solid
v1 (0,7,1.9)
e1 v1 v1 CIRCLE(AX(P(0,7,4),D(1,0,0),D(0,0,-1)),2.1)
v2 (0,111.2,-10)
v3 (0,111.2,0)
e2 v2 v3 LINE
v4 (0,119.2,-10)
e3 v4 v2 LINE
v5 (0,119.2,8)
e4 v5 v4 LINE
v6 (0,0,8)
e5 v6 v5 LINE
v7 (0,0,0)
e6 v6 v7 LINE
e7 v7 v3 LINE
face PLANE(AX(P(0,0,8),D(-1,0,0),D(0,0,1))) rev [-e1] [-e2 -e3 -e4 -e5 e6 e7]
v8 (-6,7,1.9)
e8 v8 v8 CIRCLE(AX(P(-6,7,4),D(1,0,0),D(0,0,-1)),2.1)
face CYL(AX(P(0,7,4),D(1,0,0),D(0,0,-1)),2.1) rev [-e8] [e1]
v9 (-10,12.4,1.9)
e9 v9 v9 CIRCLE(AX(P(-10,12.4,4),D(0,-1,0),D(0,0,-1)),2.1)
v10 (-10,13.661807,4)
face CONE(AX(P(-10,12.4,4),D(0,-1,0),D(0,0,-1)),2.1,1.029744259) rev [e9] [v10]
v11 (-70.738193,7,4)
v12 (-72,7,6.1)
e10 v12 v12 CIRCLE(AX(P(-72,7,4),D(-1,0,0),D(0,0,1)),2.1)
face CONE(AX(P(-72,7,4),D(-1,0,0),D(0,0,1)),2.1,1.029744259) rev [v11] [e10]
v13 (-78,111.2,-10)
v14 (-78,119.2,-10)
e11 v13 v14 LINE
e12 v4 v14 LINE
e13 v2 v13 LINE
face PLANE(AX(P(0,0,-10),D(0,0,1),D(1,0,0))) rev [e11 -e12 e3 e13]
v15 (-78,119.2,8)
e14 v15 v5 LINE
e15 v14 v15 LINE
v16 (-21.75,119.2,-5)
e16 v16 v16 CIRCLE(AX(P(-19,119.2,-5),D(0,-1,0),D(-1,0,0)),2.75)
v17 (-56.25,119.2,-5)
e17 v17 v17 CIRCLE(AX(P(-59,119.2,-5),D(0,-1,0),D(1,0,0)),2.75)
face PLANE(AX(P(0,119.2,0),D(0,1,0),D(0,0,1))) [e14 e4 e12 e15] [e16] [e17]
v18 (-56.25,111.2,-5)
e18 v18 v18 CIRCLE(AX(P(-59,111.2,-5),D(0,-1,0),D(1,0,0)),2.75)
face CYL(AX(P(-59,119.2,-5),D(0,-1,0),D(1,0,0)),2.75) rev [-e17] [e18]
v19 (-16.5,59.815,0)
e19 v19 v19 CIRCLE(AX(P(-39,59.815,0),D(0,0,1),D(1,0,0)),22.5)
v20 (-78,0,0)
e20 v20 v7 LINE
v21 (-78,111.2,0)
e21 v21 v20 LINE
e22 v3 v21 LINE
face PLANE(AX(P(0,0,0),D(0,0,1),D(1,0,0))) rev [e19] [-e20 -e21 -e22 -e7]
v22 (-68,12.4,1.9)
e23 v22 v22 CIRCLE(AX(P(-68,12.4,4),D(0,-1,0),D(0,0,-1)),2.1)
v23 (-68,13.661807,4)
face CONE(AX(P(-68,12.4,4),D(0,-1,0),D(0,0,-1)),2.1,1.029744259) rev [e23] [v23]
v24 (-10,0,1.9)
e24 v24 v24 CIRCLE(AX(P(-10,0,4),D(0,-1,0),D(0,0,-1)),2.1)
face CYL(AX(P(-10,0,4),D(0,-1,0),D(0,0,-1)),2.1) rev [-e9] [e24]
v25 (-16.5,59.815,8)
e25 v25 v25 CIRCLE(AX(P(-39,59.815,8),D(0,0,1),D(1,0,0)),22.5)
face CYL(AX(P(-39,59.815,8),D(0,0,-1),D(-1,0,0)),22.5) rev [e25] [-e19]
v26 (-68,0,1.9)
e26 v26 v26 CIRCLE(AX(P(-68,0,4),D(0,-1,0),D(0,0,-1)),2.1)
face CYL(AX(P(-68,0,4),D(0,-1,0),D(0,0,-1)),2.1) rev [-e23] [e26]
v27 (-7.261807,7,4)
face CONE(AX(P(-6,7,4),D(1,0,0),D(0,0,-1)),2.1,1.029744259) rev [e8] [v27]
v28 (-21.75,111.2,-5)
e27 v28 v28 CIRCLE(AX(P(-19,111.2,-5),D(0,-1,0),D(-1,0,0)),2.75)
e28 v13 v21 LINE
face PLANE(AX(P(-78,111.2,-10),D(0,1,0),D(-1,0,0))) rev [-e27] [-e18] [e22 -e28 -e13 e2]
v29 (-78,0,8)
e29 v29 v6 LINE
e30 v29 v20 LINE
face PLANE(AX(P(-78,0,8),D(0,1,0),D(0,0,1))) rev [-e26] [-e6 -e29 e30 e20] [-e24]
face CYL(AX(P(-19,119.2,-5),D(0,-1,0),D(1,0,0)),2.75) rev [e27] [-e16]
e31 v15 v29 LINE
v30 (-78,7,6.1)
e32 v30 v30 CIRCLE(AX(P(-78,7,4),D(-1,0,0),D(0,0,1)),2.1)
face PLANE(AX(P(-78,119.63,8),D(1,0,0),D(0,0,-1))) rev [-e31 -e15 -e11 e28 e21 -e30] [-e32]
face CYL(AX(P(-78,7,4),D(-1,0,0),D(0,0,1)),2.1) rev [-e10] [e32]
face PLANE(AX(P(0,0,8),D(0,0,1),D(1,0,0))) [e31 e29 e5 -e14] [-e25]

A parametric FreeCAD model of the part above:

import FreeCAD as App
import Part
import Sketcher
from FreeCAD import Vector
Q = App.Units.Quantity


def add_polygon(sketch, points):
    """Adds a closed chain of lines whose ends are joined by coincident constraints."""
    first, n = sketch.GeometryCount, len(points)
    for a, b in zip(points, points[1:] + points[:1]):
        sketch.addGeometry(Part.LineSegment(App.Vector(*a, 0), App.Vector(*b, 0)), False)
    for i in range(n):
        sketch.addConstraint(Sketcher.Constraint("Coincident", first + i, 2, first + (i + 1) % n, 1))

doc = App.newDocument("Part")
body = doc.addObject("PartDesign::Body", "Body")

# Sketch on XY plane
sketch1 = body.newObject("Sketcher::SketchObject", "Sketch")
sketch1.AttachmentSupport = (doc.getObject("XY_Plane"), [""])
sketch1.MapMode = "FlatFace"
add_polygon(sketch1, [(-78, 120), (-78, 0), (0, 0), (0, 120)])  # lines 0-3
sketch1.addGeometry(Part.Circle(Vector(-39, 60, 0), Vector(0, 0, 1), 22), False)  # 4
sketch1.addConstraint([
    Sketcher.Constraint("Vertical", 0),
    Sketcher.Constraint("Horizontal", 1),
    Sketcher.Constraint("Vertical", 2),
    Sketcher.Constraint("Horizontal", 3),
    Sketcher.Constraint("Coincident", 1, 2, -1, 1),
    Sketcher.Constraint("Diameter", 4, Q("45 mm")),
    Sketcher.Constraint("DistanceX", 1, 1, 1, 2, Q("78 mm")),
    Sketcher.Constraint("DistanceX", 4, 3, -1, 1, Q("39 mm")),
    Sketcher.Constraint("DistanceY", 0, 2, 0, 1, Q("119.63 mm")),
    Sketcher.Constraint("DistanceY", -1, 1, 4, 3, Q("59.815 mm")),
])
pad1 = body.newObject("PartDesign::Pad", "Pad")
pad1.Profile = sketch1
pad1.Length = 8

# Sketch on YZ plane
sketch2 = body.newObject("Sketcher::SketchObject", "Sketch001")
sketch2.AttachmentSupport = (doc.getObject("YZ_Plane"), [""])
sketch2.MapMode = "FlatFace"
sketch2.AttachmentOffset = App.Placement(Vector(0, 0, -68), App.Rotation())
add_polygon(sketch2, [(106, 4), (119.6, 4), (119.6, 6.1), (107.2, 6.1)])  # lines 0-3
sketch2.addGeometry(Part.LineSegment(Vector(119.6, 4, 0), Vector(106, 4, 0)), True)  # axis
sketch2.addConstraint([
    Sketcher.Constraint("Horizontal", 0),
    Sketcher.Constraint("Vertical", 1),
    Sketcher.Constraint("Horizontal", 2),
    Sketcher.Constraint("Horizontal", 4),
    Sketcher.Constraint("Coincident", 4, 1, 0, 2),
    Sketcher.Constraint("Equal", 0, 4),
    Sketcher.Constraint("Angle", 3, Q("-121 deg")),
    Sketcher.Constraint("DistanceX", 2, 2, 2, 1, Q("12.4 mm")),
    Sketcher.Constraint("DistanceY", 1, 1, 1, 2, Q("2.1 mm")),
    Sketcher.Constraint("DistanceY", -1, 1, 0, 2, Q("4 mm")),
    Sketcher.Constraint("DistanceX", -1, 1, 0, 2, Q("119.63 mm")),
])
groove = body.newObject("PartDesign::Groove", "Groove")
groove.Profile = sketch2
groove.ReferenceAxis = (sketch2, ["Axis0"])
groove.Angle = 360
doc.recompute()

linearpattern = body.newObject("PartDesign::LinearPattern", "LinearPattern")
linearpattern.Originals = [groove]
linearpattern.Direction = (doc.getObject("X_Axis"), [""])
linearpattern.Mode = "offset"
linearpattern.Offset = 58
linearpattern.Occurrences = 2
body.Tip = linearpattern
doc.recompute()

datumplane = body.newObject("PartDesign::Plane", "DatumPlane")
datumplane.AttachmentSupport = (doc.getObject("XZ_Plane"), [""])
datumplane.MapMode = "FlatFace"
datumplane.AttachmentOffset = App.Placement(Vector(0, 0, -59.815), App.Rotation())
mirrored = body.newObject("PartDesign::Mirrored", "Mirrored")
mirrored.Originals = [groove]
mirrored.MirrorPlane = (datumplane, [""])
body.Tip = mirrored

# Sketch on YZ plane
sketch3 = body.newObject("Sketcher::SketchObject", "Sketch002")
sketch3.AttachmentSupport = (doc.getObject("YZ_Plane"), [""])
sketch3.MapMode = "FlatFace"
sketch3.AttachmentOffset = App.Placement(Vector(0, 0, -10), App.Rotation())
add_polygon(sketch3, [(0, 4), (13.7, 4), (12.4, 6.1), (0, 6.1)])  # lines 0-3
sketch3.addGeometry(Part.LineSegment(Vector(13.7, 4, 0), Vector(0, 4, 0)), True)  # axis
sketch3.addConstraint([
    Sketcher.Constraint("Horizontal", 0),
    Sketcher.Constraint("Horizontal", 2),
    Sketcher.Constraint("Vertical", 3),
    Sketcher.Constraint("Horizontal", 4),
    Sketcher.Constraint("Coincident", 4, 1, 0, 2),
    Sketcher.Constraint("PointOnObject", 2, 2, -2),
    Sketcher.Constraint("PointOnObject", 4, 2, -2),
    Sketcher.Constraint("Angle", 1, Q("121 deg")),
    Sketcher.Constraint("DistanceX", 2, 2, 2, 1, Q("12.4 mm")),
    Sketcher.Constraint("DistanceY", 3, 2, 3, 1, Q("2.1 mm")),
    Sketcher.Constraint("DistanceY", -1, 1, 0, 2, Q("4 mm")),
])
groove2 = body.newObject("PartDesign::Groove", "Groove001")
groove2.Profile = sketch3
groove2.ReferenceAxis = (sketch3, ["Axis0"])
groove2.Angle = 360

# Sketch on XY plane
sketch4 = body.newObject("Sketcher::SketchObject", "Sketch003")
sketch4.AttachmentSupport = (doc.getObject("XY_Plane"), [""])
sketch4.MapMode = "FlatFace"
sketch4.AttachmentOffset = App.Placement(Vector(0, 0, 8), App.Rotation())
add_polygon(sketch4, [(-78, 120), (-78, 96), (0, 96), (0, 120)])  # lines 0-3
sketch4.addConstraint([
    Sketcher.Constraint("Vertical", 0),
    Sketcher.Constraint("Horizontal", 1),
    Sketcher.Constraint("Vertical", 2),
    Sketcher.Constraint("Horizontal", 3),
    Sketcher.Constraint("PointOnObject", 1, 2, -2),
    Sketcher.Constraint("DistanceX", 1, 1, 1, 2, Q("78 mm")),
    Sketcher.Constraint("DistanceY", -1, 1, 2, 2, Q("119.63 mm")),
    Sketcher.Constraint("DistanceY", 0, 2, 0, 1, Q("23.523911 mm")),
])
pad2 = body.newObject("PartDesign::Pad", "Pad001")
pad2.Profile = sketch4
pad2.Length = 8
pad2.Reversed = True

# Sketch on XY plane
sketch5 = body.newObject("Sketcher::SketchObject", "Sketch004")
sketch5.AttachmentSupport = (doc.getObject("XY_Plane"), [""])
sketch5.MapMode = "FlatFace"
add_polygon(sketch5, [(0, 120), (0, 111), (-78, 111), (-78, 120)])  # lines 0-3
sketch5.addConstraint([
    Sketcher.Constraint("Vertical", 0),
    Sketcher.Constraint("Horizontal", 1),
    Sketcher.Constraint("Vertical", 2),
    Sketcher.Constraint("Horizontal", 3),
    Sketcher.Constraint("PointOnObject", 0, 2, -2),
    Sketcher.Constraint("DistanceX", 1, 2, 1, 1, Q("78 mm")),
    Sketcher.Constraint("DistanceY", 0, 2, 0, 1, Q("8.43 mm")),
    Sketcher.Constraint("DistanceY", -1, 1, 0, 2, Q("111.2 mm")),
])
pad3 = body.newObject("PartDesign::Pad", "Pad002")
pad3.Profile = sketch5
pad3.Length = 10
pad3.Reversed = True

# Sketch on XZ plane
sketch6 = body.newObject("Sketcher::SketchObject", "Sketch005")
sketch6.AttachmentSupport = (doc.getObject("XZ_Plane"), [""])
sketch6.MapMode = "FlatFace"
sketch6.AttachmentOffset = App.Placement(Vector(0, 0, -119.63), App.Rotation())
add_polygon(sketch6, [(-78, -10), (-78, 8), (0, 8), (0, -10)])  # lines 0-3
sketch6.addConstraint([
    Sketcher.Constraint("Vertical", 0),
    Sketcher.Constraint("Horizontal", 1),
    Sketcher.Constraint("Vertical", 2),
    Sketcher.Constraint("Horizontal", 3),
    Sketcher.Constraint("PointOnObject", 1, 2, -2),
    Sketcher.Constraint("DistanceX", 1, 1, 1, 2, Q("78 mm")),
    Sketcher.Constraint("DistanceY", 0, 1, 0, 2, Q("18 mm")),
    Sketcher.Constraint("DistanceY", -1, 1, 0, 2, Q("8 mm")),
])
pocket1 = body.newObject("PartDesign::Pocket", "Pocket")
pocket1.Profile = sketch6
pocket1.Length = 0.43
pocket1.Reversed = True

# Sketch on XZ plane
sketch7 = body.newObject("Sketcher::SketchObject", "Sketch006")
sketch7.AttachmentSupport = (doc.getObject("XZ_Plane"), [""])
sketch7.MapMode = "FlatFace"
sketch7.AttachmentOffset = App.Placement(Vector(0, 0, -111.2), App.Rotation())
sketch7.addGeometry([
    Part.Circle(Vector(-59, -5, 0), Vector(0, 0, 1), 2.8),
    Part.Circle(Vector(-19, -5, 0), Vector(0, 0, 1), 2.8),
], False)
sketch7.addConstraint([
    Sketcher.Constraint("Equal", 0, 1),
    Sketcher.Constraint("Horizontal", 0, 3, 1, 3),
    Sketcher.Constraint("Diameter", 0, Q("5.5 mm")),
    Sketcher.Constraint("DistanceX", 0, 3, -1, 1, Q("59 mm")),
    Sketcher.Constraint("DistanceY", 0, 3, -1, 1, Q("5 mm")),
    Sketcher.Constraint("DistanceX", 1, 3, -1, 1, Q("19 mm")),
])
pocket2 = body.newObject("PartDesign::Pocket", "Pocket001")
pocket2.Profile = sketch7
pocket2.Type = "ThroughAll"

# Sketch on XZ plane
sketch8 = body.newObject("Sketcher::SketchObject", "Sketch007")
sketch8.AttachmentSupport = (doc.getObject("XZ_Plane"), [""])
sketch8.MapMode = "FlatFace"
sketch8.AttachmentOffset = App.Placement(Vector(0, 0, -7), App.Rotation())
add_polygon(sketch8, [(-70.7, 4), (-78, 4), (-78, 6.1), (-72, 6.1)])  # lines 0-3
sketch8.addGeometry(Part.LineSegment(Vector(-78, 4, 0), Vector(-70.7, 4, 0)), True)  # axis
sketch8.addConstraint([
    Sketcher.Constraint("Horizontal", 0),
    Sketcher.Constraint("Vertical", 1),
    Sketcher.Constraint("Horizontal", 2),
    Sketcher.Constraint("Horizontal", 4),
    Sketcher.Constraint("Coincident", 4, 1, 0, 2),
    Sketcher.Constraint("Equal", 0, 4),
    Sketcher.Constraint("DistanceX", 2, 1, 2, 2, Q("6 mm")),
    Sketcher.Constraint("Angle", 3, Q("-59 deg")),
    Sketcher.Constraint("DistanceY", 1, 1, 1, 2, Q("2.1 mm")),
    Sketcher.Constraint("DistanceX", 0, 2, -1, 1, Q("78 mm")),
    Sketcher.Constraint("DistanceY", -1, 1, 0, 2, Q("4 mm")),
])
groove3 = body.newObject("PartDesign::Groove", "Groove002")
groove3.Profile = sketch8
groove3.ReferenceAxis = (sketch8, ["Axis0"])
groove3.Angle = 360
doc.recompute()

linearpattern2 = body.newObject("PartDesign::LinearPattern", "LinearPattern001")
linearpattern2.Originals = [groove3]
linearpattern2.Direction = (doc.getObject("Z_Axis"), [""])
linearpattern2.Mode = "offset"
linearpattern2.Offset = 90
linearpattern2.Occurrences = 2
linearpattern2.Reversed = True
body.Tip = linearpattern2
doc.recompute()

datumplane2 = body.newObject("PartDesign::Plane", "DatumPlane001")
datumplane2.AttachmentSupport = (doc.getObject("YZ_Plane"), [""])
datumplane2.MapMode = "FlatFace"
datumplane2.AttachmentOffset = App.Placement(Vector(0, 0, -39), App.Rotation())
mirrored2 = body.newObject("PartDesign::Mirrored", "Mirrored001")
mirrored2.Originals = [groove3]
mirrored2.MirrorPlane = (datumplane2, [""])
body.Tip = mirrored2

# Sketch on XZ plane
sketch9 = body.newObject("Sketcher::SketchObject", "Sketch008")
sketch9.AttachmentSupport = (doc.getObject("XZ_Plane"), [""])
sketch9.MapMode = "FlatFace"
sketch9.AttachmentOffset = App.Placement(Vector(0, 0, -7), App.Rotation())
add_polygon(sketch9, [(0, -86), (-7.3, -86), (-6, -83.9), (0, -83.9)])  # lines 0-3
sketch9.addGeometry(Part.LineSegment(Vector(-7.3, -86, 0), Vector(0, -86, 0)), True)  # axis
sketch9.addConstraint([
    Sketcher.Constraint("Horizontal", 0),
    Sketcher.Constraint("Horizontal", 2),
    Sketcher.Constraint("Vertical", 3),
    Sketcher.Constraint("Horizontal", 4),
    Sketcher.Constraint("Coincident", 4, 1, 0, 2),
    Sketcher.Constraint("PointOnObject", 2, 2, -2),
    Sketcher.Constraint("PointOnObject", 4, 2, -2),
    Sketcher.Constraint("DistanceX", 2, 1, 2, 2, Q("6 mm")),
    Sketcher.Constraint("Angle", 1, Q("59 deg")),
    Sketcher.Constraint("DistanceY", 3, 2, 3, 1, Q("2.1 mm")),
    Sketcher.Constraint("DistanceY", 0, 2, -1, 1, Q("86 mm")),
])
groove4 = body.newObject("PartDesign::Groove", "Groove003")
groove4.Profile = sketch9
groove4.ReferenceAxis = (sketch9, ["Axis0"])
groove4.Angle = 360

doc.recompute()
